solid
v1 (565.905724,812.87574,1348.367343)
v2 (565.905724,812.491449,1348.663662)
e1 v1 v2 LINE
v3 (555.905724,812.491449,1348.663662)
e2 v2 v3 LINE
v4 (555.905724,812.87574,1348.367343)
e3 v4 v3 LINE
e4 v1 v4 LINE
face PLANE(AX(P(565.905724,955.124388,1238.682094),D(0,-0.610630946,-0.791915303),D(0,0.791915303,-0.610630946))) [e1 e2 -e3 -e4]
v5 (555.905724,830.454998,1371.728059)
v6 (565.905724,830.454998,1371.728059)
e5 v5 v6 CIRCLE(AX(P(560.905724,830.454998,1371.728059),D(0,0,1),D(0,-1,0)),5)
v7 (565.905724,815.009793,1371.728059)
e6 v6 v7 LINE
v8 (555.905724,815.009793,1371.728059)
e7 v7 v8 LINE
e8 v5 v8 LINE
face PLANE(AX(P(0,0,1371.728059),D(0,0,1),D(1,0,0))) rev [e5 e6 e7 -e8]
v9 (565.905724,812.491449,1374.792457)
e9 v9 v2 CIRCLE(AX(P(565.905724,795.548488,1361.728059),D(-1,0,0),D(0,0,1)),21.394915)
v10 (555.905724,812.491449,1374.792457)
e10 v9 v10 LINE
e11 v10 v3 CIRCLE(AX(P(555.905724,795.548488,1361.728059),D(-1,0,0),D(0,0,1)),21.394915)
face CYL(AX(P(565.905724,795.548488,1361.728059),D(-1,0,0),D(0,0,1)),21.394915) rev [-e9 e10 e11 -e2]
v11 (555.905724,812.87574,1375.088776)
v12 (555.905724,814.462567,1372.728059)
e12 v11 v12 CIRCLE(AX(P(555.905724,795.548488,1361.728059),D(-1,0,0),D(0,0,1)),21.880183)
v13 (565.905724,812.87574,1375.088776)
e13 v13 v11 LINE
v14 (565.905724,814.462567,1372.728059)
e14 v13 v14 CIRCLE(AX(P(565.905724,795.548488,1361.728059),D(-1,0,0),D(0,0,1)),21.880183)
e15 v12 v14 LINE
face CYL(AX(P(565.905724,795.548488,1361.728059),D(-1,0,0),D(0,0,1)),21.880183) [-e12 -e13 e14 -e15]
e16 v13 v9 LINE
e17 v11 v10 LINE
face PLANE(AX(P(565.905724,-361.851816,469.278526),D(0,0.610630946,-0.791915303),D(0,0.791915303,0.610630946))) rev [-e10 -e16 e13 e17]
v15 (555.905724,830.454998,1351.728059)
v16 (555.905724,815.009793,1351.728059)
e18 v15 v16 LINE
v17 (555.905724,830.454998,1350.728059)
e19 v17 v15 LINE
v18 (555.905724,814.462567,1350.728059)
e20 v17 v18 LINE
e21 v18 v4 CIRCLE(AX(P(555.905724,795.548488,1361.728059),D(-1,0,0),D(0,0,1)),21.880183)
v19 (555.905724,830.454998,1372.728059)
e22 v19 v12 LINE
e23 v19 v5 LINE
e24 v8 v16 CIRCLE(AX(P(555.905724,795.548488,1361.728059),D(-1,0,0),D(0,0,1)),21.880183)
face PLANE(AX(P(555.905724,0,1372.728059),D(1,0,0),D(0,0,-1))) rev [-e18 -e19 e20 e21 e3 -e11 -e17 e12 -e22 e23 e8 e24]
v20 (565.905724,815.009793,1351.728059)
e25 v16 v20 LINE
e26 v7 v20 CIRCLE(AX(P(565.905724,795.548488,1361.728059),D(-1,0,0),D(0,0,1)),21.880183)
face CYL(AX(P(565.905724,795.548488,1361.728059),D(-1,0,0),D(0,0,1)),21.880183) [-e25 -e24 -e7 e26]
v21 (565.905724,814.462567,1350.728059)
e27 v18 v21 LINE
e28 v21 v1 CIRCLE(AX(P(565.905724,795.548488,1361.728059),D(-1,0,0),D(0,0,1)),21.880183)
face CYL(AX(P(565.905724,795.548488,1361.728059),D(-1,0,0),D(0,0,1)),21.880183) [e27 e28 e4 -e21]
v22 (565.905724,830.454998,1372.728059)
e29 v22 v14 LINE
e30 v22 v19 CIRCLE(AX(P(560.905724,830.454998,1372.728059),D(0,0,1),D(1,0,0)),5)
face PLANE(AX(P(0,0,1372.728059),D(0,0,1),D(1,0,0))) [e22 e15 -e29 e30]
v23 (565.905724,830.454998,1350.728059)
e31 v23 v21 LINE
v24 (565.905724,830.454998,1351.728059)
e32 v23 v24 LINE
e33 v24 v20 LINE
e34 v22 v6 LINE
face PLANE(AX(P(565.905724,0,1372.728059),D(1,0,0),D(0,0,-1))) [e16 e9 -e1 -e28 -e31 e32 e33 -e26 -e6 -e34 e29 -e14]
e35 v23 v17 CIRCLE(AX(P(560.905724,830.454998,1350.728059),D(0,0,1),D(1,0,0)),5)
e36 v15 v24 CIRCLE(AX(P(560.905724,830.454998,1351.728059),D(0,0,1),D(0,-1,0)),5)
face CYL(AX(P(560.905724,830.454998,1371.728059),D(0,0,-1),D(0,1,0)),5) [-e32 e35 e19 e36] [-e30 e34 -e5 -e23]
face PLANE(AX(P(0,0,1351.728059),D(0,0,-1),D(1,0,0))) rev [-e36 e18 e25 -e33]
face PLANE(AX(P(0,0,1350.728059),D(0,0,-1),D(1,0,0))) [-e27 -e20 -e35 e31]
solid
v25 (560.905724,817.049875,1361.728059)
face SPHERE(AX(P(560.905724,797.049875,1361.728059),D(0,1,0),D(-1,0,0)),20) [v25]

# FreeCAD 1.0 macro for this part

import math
import FreeCAD as App
import Part
import Sketcher

doc = App.newDocument("Part")
params = doc.addObject("Spreadsheet::Sheet", "Params")
for row, (alias, value) in enumerate([
    ("sketch1_diameter", "10 mm"),
    ("pad1_length", "20 mm"),
    ("sketch2_radius", "5 mm"),
    ("pad2_length", "1 mm"),
    ("pad3_length", "10 mm"),
    ("sketch4_radius", "20 mm"),
    ("revolution_angle", "360 deg"),
], start=1):
    params.set(f"A{row}", alias)
    params.set(f"B{row}", "=" + value)
    params.setAlias(f"B{row}", alias)

body = doc.addObject("PartDesign::Body", "Body")

sketch1 = body.newObject("Sketcher::SketchObject", "Sketch")
sketch1.AttachmentSupport = (doc.getObject("XY_Plane"), [""])
sketch1.MapMode = "FlatFace"
sketch1.AttachmentOffset = App.Placement(App.Vector(0, 0, 1351.728059), App.Rotation())
sketch1.addGeometry(Part.Circle(App.Vector(560.905724, 830.454998, 0), App.Vector(0, 0, 1), 5), False)
sketch1.addConstraint([
    Sketcher.Constraint("Diameter", 0, 10.0),
    Sketcher.Constraint("DistanceX", -1, 1, 0, 3, 560.905724),
    Sketcher.Constraint("DistanceY", -1, 1, 0, 3, 830.454998),
])
sketch1.setExpression("Constraints[0]", "Params.sketch1_diameter")
pad1 = body.newObject("PartDesign::Pad", "Pad")
pad1.Profile = sketch1
pad1.setExpression("Length", "Params.pad1_length")

sketch2 = body.newObject("Sketcher::SketchObject", "Sketch001")
sketch2.AttachmentSupport = (doc.getObject("XY_Plane"), [""])
sketch2.MapMode = "FlatFace"
sketch2.AttachmentOffset = App.Placement(App.Vector(0, 0, 1371.728059), App.Rotation())
sketch2.addGeometry([
    Part.ArcOfCircle(Part.Circle(App.Vector(560.905724, 830.454998, 0), App.Vector(0, 0, 1), 5), math.radians(0), math.radians(180)),
    Part.LineSegment(App.Vector(555.905724, 830.454998, 0), App.Vector(555.905724, 814.462567, 0)),
    Part.LineSegment(App.Vector(555.905724, 814.462567, 0), App.Vector(565.905724, 814.462567, 0)),
    Part.LineSegment(App.Vector(565.905724, 814.462567, 0), App.Vector(565.905724, 830.454998, 0)),
], False)
sketch2.addConstraint([
    Sketcher.Constraint("Tangent", 0, 2, 1, 1),
    Sketcher.Constraint("Coincident", 1, 2, 2, 1),
    Sketcher.Constraint("Coincident", 2, 2, 3, 1),
    Sketcher.Constraint("Tangent", 3, 2, 0, 1),
    Sketcher.Constraint("Vertical", 1),
    Sketcher.Constraint("Horizontal", 2),
    Sketcher.Constraint("Vertical", 3),
    Sketcher.Constraint("Radius", 0, 5.0),
    Sketcher.Constraint("DistanceY", 1, 2, 1, 1, 15.99243),
    Sketcher.Constraint("DistanceX", -1, 1, 0, 3, 560.905724),
    Sketcher.Constraint("DistanceY", -1, 1, 0, 3, 830.454998),
])
sketch2.setExpression("Constraints[7]", "Params.sketch2_radius")
pad2 = body.newObject("PartDesign::Pad", "Pad001")
pad2.Profile = sketch2
pad2.setExpression("Length", "Params.pad2_length")
doc.recompute()

datumplane = body.newObject("PartDesign::Plane", "DatumPlane")
datumplane.AttachmentSupport = (doc.getObject("XY_Plane"), [""])
datumplane.MapMode = "FlatFace"
datumplane.AttachmentOffset = App.Placement(App.Vector(0, 0, 1361.728059), App.Rotation())
mirrored = body.newObject("PartDesign::Mirrored", "Mirrored")
mirrored.Originals = [pad2]
mirrored.MirrorPlane = (datumplane, [""])
body.Tip = mirrored

sketch3 = body.newObject("Sketcher::SketchObject", "Sketch002")
sketch3.AttachmentSupport = (doc.getObject("YZ_Plane"), [""])
sketch3.MapMode = "FlatFace"
sketch3.AttachmentOffset = App.Placement(App.Vector(0, 0, 555.905724), App.Rotation())
sketch3.addGeometry([
    Part.LineSegment(App.Vector(812.87574, 1348.367343, 0), App.Vector(812.491449, 1348.663662, 0)),
    Part.ArcOfCircle(Part.Circle(App.Vector(795.548488, 1361.728059, 0), App.Vector(0, 0, 1), 21.394915), math.radians(-37.635138), math.radians(37.635138)),
    Part.LineSegment(App.Vector(812.491449, 1374.792457, 0), App.Vector(812.87574, 1375.088776, 0)),
    Part.ArcOfCircle(Part.Circle(App.Vector(795.548488, 1361.728059, 0), App.Vector(0, 0, 1), 21.880183), math.radians(-37.635138), math.radians(37.635138)),
], False)
sketch3.addConstraint([
    Sketcher.Constraint("Coincident", 0, 2, 1, 1),
    Sketcher.Constraint("Coincident", 1, 2, 2, 1),
    Sketcher.Constraint("Coincident", 2, 2, 3, 2),
    Sketcher.Constraint("Coincident", 3, 1, 0, 1),
    Sketcher.Constraint("Coincident", 3, 3, 1, 3),
    Sketcher.Constraint("Vertical", 0, 2, 1, 2),
    Sketcher.Constraint("Vertical", 2, 2, 3, 1),
    Sketcher.Constraint("Radius", 1, 21.394915),
    Sketcher.Constraint("Radius", 3, 21.880183),
    Sketcher.Constraint("DistanceY", -1, 1, 1, 3, 1361.728059),
    Sketcher.Constraint("DistanceX", -1, 1, 0, 2, 812.491449),
    Sketcher.Constraint("DistanceX", -1, 1, 2, 2, 812.87574),
    Sketcher.Constraint("DistanceX", 1, 3, 0, 2, 16.942961),
])
pad3 = body.newObject("PartDesign::Pad", "Pad002")
pad3.Profile = sketch3
pad3.setExpression("Length", "Params.pad3_length")
body2 = doc.addObject("PartDesign::Body", "Body001")

sketch4 = body2.newObject("Sketcher::SketchObject", "Sketch003")
sketch4.AttachmentSupport = (doc.getObject("XY_Plane001"), [""])
sketch4.MapMode = "FlatFace"
sketch4.AttachmentOffset = App.Placement(App.Vector(0, 0, 1361.728059), App.Rotation())
sketch4.addGeometry([
    Part.LineSegment(App.Vector(560.905724, 817.049875, 0), App.Vector(560.905724, 777.049875, 0)),
    Part.ArcOfCircle(Part.Circle(App.Vector(560.905724, 797.049875, 0), App.Vector(0, 0, 1), 20), math.radians(-90), math.radians(90)),
], False)
sketch4.addGeometry(Part.LineSegment(App.Vector(560.905724, 817.049875, 0), App.Vector(560.905724, 777.049875, 0)), True)
sketch4.addConstraint([
    Sketcher.Constraint("Coincident", 0, 1, 1, 2),
    Sketcher.Constraint("Coincident", 1, 1, 0, 2),
    Sketcher.Constraint("Vertical", 0),
    Sketcher.Constraint("Vertical", 2),
    Sketcher.Constraint("Coincident", 2, 1, 0, 1),
    Sketcher.Constraint("Vertical", 1, 3, 0, 1),
    Sketcher.Constraint("Equal", 0, 2),
    Sketcher.Constraint("Radius", 1, 20.0),
    Sketcher.Constraint("DistanceX", -1, 1, 1, 3, 560.905724),
    Sketcher.Constraint("DistanceY", -1, 1, 1, 3, 797.049875),
])
sketch4.setExpression("Constraints[7]", "Params.sketch4_radius")
revolution = body2.newObject("PartDesign::Revolution", "Revolution")
revolution.Profile = sketch4
revolution.ReferenceAxis = (sketch4, ["Axis0"])
revolution.setExpression("Angle", "Params.revolution_angle")

doc.recompute()
